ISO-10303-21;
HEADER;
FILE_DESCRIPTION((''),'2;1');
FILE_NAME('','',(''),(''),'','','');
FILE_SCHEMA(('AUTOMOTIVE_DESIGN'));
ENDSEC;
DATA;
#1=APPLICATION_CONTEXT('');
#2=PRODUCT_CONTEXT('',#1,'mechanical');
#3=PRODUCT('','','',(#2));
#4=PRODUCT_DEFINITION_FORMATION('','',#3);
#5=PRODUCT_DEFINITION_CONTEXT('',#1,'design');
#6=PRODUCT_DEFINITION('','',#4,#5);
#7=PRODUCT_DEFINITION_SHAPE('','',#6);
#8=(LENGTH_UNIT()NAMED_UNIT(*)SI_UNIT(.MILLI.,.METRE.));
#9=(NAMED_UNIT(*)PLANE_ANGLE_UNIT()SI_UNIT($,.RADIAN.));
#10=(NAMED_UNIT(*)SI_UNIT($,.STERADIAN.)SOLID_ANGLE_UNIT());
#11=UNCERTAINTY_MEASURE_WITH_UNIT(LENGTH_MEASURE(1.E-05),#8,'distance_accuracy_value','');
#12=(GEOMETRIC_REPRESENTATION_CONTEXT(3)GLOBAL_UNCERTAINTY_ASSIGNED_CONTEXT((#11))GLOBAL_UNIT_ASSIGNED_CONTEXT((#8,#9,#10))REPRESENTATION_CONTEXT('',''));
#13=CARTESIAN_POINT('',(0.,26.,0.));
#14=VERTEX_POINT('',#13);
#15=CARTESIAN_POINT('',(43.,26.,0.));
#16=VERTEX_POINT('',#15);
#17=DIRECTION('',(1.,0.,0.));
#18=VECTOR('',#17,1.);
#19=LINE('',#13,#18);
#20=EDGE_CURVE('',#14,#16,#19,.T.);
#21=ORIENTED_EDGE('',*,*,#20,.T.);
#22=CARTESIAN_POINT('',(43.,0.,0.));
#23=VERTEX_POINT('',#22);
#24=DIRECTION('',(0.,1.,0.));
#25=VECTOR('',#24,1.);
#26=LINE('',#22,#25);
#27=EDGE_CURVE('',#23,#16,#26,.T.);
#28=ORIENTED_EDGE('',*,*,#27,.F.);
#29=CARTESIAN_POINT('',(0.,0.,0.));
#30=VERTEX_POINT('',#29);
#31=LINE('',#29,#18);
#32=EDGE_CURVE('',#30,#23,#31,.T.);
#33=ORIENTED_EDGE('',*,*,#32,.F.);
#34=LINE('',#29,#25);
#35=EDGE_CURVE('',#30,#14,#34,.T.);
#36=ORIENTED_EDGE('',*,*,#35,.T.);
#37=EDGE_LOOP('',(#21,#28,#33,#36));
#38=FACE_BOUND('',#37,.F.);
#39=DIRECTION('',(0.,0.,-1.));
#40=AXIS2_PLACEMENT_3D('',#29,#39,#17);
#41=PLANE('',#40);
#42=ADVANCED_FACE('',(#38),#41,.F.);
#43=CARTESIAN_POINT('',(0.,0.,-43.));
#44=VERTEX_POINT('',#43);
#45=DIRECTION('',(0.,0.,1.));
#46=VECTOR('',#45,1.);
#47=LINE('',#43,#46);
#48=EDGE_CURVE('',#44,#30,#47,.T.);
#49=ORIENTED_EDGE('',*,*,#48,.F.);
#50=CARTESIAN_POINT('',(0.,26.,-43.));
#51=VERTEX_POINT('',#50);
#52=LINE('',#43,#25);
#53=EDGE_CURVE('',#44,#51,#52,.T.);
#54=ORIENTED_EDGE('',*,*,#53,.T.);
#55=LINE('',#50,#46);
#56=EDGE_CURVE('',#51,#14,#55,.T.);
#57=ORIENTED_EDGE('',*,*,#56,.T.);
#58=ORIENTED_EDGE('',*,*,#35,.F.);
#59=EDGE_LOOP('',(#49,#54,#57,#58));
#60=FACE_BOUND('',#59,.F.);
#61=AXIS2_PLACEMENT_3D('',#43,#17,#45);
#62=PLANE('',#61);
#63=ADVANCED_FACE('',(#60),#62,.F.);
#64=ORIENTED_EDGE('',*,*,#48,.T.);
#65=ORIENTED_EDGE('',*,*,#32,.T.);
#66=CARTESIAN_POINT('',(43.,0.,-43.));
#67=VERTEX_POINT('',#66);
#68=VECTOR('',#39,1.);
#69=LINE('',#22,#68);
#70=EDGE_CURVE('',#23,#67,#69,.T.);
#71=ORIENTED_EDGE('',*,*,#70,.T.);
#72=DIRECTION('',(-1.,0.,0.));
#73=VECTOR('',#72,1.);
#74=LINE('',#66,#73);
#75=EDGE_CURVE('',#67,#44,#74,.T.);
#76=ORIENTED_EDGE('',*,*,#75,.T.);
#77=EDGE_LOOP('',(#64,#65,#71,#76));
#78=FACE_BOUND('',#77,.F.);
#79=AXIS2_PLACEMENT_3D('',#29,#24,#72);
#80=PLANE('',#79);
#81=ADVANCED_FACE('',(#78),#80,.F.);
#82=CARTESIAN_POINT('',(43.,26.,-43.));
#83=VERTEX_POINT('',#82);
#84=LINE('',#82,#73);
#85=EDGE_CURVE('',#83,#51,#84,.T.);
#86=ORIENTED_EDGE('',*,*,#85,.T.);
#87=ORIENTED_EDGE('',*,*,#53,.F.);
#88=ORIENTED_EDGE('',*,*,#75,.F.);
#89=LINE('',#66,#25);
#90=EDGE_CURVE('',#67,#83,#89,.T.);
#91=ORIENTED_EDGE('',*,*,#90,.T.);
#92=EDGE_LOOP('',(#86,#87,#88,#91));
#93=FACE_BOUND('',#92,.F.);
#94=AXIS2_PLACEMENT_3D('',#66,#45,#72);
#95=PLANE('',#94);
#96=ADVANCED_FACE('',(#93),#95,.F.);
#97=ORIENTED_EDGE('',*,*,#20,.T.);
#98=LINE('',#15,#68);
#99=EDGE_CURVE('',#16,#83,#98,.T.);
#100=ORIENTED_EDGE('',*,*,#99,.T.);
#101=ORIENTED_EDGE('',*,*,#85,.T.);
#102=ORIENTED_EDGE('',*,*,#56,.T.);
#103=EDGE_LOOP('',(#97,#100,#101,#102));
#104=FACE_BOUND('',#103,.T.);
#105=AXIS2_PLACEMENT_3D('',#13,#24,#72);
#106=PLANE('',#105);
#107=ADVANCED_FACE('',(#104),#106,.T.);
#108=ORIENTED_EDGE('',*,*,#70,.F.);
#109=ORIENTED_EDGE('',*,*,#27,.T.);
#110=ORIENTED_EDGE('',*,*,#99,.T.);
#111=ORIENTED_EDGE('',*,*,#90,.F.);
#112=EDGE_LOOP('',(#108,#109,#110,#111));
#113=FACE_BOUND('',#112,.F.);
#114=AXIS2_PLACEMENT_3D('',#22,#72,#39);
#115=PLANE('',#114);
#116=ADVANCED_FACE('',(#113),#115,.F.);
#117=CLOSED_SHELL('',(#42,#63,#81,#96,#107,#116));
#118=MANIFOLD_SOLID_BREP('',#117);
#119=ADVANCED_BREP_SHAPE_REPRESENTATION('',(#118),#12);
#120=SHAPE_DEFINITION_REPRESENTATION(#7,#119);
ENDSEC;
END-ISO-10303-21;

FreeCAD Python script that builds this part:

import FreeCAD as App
import Part
import Sketcher
from FreeCAD import Vector
Q = App.Units.Quantity


def add_polygon(sketch, points):
    """Adds a closed chain of lines whose ends are joined by coincident constraints."""
    first, n = sketch.GeometryCount, len(points)
    for a, b in zip(points, points[1:] + points[:1]):
        sketch.addGeometry(Part.LineSegment(App.Vector(*a, 0), App.Vector(*b, 0)), False)
    for i in range(n):
        sketch.addConstraint(Sketcher.Constraint("Coincident", first + i, 2, first + (i + 1) % n, 1))

doc = App.newDocument("Part")
body = doc.addObject("PartDesign::Body", "Body")

# Sketch on XZ plane
sketch1 = body.newObject("Sketcher::SketchObject", "Sketch")
sketch1.AttachmentSupport = (doc.getObject("XZ_Plane"), [""])
sketch1.MapMode = "FlatFace"
add_polygon(sketch1, [(0, -43), (0, 0), (43, 0), (43, -43)])  # lines 0-3
sketch1.addConstraint(Sketcher.Constraint("Vertical", 0))
sketch1.addConstraint(Sketcher.Constraint("Horizontal", 1))
sketch1.addConstraint(Sketcher.Constraint("Vertical", 2))
sketch1.addConstraint(Sketcher.Constraint("Horizontal", 3))
sketch1.addConstraint(Sketcher.Constraint("Coincident", 0, 2, -1, 1))
sketch1.addConstraint(Sketcher.Constraint("Equal", 3, 0))
sketch1.addConstraint(Sketcher.Constraint("DistanceX", 1, 1, 1, 2, Q("43 mm")))
pad1 = body.newObject("PartDesign::Pad", "Pad")
pad1.Profile = sketch1
pad1.Length = 26
pad1.Reversed = True

doc.recompute()
